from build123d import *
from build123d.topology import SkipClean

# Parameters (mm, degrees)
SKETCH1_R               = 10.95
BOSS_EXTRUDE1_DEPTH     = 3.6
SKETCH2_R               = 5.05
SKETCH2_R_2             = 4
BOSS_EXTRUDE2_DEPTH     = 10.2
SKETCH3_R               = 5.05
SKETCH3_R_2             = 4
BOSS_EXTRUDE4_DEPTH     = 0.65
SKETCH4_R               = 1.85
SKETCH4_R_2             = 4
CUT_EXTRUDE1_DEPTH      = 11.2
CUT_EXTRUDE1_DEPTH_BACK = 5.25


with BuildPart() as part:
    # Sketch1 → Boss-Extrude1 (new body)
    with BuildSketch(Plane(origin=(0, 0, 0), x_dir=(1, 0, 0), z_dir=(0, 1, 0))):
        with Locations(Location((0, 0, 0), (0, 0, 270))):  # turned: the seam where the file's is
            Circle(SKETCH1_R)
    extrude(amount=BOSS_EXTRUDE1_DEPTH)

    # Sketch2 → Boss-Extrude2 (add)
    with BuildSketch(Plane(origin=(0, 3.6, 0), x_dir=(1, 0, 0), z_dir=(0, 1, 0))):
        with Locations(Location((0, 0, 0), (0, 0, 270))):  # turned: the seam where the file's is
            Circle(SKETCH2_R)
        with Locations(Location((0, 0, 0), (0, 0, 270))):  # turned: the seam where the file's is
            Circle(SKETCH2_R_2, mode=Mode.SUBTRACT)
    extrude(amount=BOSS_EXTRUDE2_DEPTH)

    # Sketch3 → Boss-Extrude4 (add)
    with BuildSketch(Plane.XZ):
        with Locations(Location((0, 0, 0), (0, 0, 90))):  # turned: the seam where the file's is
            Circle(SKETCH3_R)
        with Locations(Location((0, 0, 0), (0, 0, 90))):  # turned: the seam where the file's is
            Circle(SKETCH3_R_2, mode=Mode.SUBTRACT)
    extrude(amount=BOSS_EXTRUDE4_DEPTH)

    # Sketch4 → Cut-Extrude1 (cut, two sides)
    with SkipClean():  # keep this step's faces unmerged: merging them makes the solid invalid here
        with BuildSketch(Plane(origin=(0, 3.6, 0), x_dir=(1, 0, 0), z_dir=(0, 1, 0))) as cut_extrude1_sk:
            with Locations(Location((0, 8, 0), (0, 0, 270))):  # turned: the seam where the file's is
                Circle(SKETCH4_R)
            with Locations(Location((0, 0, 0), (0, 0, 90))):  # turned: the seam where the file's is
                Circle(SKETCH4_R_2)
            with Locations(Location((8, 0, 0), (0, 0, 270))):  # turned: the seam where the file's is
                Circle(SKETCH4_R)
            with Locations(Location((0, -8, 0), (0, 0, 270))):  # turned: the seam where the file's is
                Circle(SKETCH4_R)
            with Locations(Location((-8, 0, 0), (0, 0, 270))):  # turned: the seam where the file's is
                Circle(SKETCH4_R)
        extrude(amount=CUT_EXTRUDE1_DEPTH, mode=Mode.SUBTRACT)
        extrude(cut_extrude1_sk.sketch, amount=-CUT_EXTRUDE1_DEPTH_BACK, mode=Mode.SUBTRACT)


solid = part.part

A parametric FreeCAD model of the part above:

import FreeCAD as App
import Part
import Sketcher

V = App.Vector

doc = App.newDocument("Part")
params = doc.addObject("Spreadsheet::Sheet", "Params")
for row, (alias, value) in enumerate([
    ("sketch1_diameter", "21.9 mm"),
    ("pad1_length", "3.6 mm"),
    ("sketch2_diameter", "8 mm"),
    ("sketch2_diameter2", "10.1 mm"),
    ("pad2_length", "10.2 mm"),
    ("sketch3_diameter", "8 mm"),
    ("sketch3_diameter2", "10.1 mm"),
    ("pad3_length", "0.65 mm"),
    ("sketch4_diameter", "8 mm"),
    ("sketch4_diameter2", "3.7 mm"),
], start=1):
    params.set(f"A{row}", alias)
    params.set(f"B{row}", "=" + value)
    params.setAlias(f"B{row}", alias)

body = doc.addObject("PartDesign::Body", "Body")

# Sketch on XZ plane
sketch1 = doc.addObject("Sketcher::SketchObject", "Sketch")
body.addObject(sketch1)
sketch1.AttachmentSupport = (doc.XZ_Plane, [""])
sketch1.MapMode = "FlatFace"
sketch1.addGeometry(Part.Circle(V(0, 0, 0), V(0, 0, 1), 11), False)
sketch1.addConstraint(Sketcher.Constraint("Coincident", 0, 3, -1, 1))
sketch1.addConstraint(Sketcher.Constraint("Diameter", 0, 21.9))
sketch1.setExpression("Constraints[1]", "Params.sketch1_diameter")
pad1 = doc.addObject("PartDesign::Pad", "Pad")
body.addObject(pad1)
pad1.Profile = sketch1
pad1.setExpression("Length", "Params.pad1_length")
pad1.Reversed = True

# Sketch on XZ plane
sketch2 = doc.addObject("Sketcher::SketchObject", "Sketch001")
body.addObject(sketch2)
sketch2.AttachmentSupport = (doc.XZ_Plane, [""])
sketch2.MapMode = "FlatFace"
sketch2.AttachmentOffset = App.Placement(V(0, 0, -3.6), App.Rotation())
sketch2.addGeometry(Part.Circle(V(0, 0, 0), V(0, 0, 1), 5), False)
sketch2.addGeometry(Part.Circle(V(0, 0, 0), V(0, 0, 1), 4), False)
sketch2.addConstraint(Sketcher.Constraint("Coincident", 0, 3, -1, 1))
sketch2.addConstraint(Sketcher.Constraint("Coincident", 1, 3, -1, 1))
sketch2.addConstraint(Sketcher.Constraint("Diameter", 1, 8.0))
sketch2.addConstraint(Sketcher.Constraint("Diameter", 0, 10.1))
sketch2.setExpression("Constraints[2]", "Params.sketch2_diameter")
sketch2.setExpression("Constraints[3]", "Params.sketch2_diameter2")
pad2 = doc.addObject("PartDesign::Pad", "Pad001")
body.addObject(pad2)
pad2.Profile = sketch2
pad2.setExpression("Length", "Params.pad2_length")
pad2.Reversed = True

# Sketch on XZ plane
sketch3 = doc.addObject("Sketcher::SketchObject", "Sketch002")
body.addObject(sketch3)
sketch3.AttachmentSupport = (doc.XZ_Plane, [""])
sketch3.MapMode = "FlatFace"
sketch3.addGeometry(Part.Circle(V(0, 0, 0), V(0, 0, 1), 5), False)
sketch3.addGeometry(Part.Circle(V(0, 0, 0), V(0, 0, 1), 4), False)
sketch3.addConstraint(Sketcher.Constraint("Coincident", 0, 3, -1, 1))
sketch3.addConstraint(Sketcher.Constraint("Coincident", 1, 3, -1, 1))
sketch3.addConstraint(Sketcher.Constraint("Diameter", 1, 8.0))
sketch3.addConstraint(Sketcher.Constraint("Diameter", 0, 10.1))
sketch3.setExpression("Constraints[2]", "Params.sketch3_diameter")
sketch3.setExpression("Constraints[3]", "Params.sketch3_diameter2")
pad3 = doc.addObject("PartDesign::Pad", "Pad002")
body.addObject(pad3)
pad3.Profile = sketch3
pad3.setExpression("Length", "Params.pad3_length")

# Sketch on XZ plane
sketch4 = doc.addObject("Sketcher::SketchObject", "Sketch003")
body.addObject(sketch4)
sketch4.AttachmentSupport = (doc.XZ_Plane, [""])
sketch4.MapMode = "FlatFace"
sketch4.AttachmentOffset = App.Placement(V(0, 0, -3.6), App.Rotation())
sketch4.addGeometry(Part.Circle(V(0, -8, 0), V(0, 0, 1), 1.9), False)
sketch4.addGeometry(Part.Circle(V(0, 0, 0), V(0, 0, 1), 4), False)
sketch4.addGeometry(Part.Circle(V(8, 0, 0), V(0, 0, 1), 1.9), False)
sketch4.addGeometry(Part.Circle(V(0, 8, 0), V(0, 0, 1), 1.9), False)
sketch4.addGeometry(Part.Circle(V(-8, 0, 0), V(0, 0, 1), 1.9), False)
sketch4.addConstraint(Sketcher.Constraint("Coincident", 1, 3, -1, 1))
sketch4.addConstraint(Sketcher.Constraint("Equal", 0, 2))
sketch4.addConstraint(Sketcher.Constraint("Equal", 2, 3))
sketch4.addConstraint(Sketcher.Constraint("Equal", 3, 4))
sketch4.addConstraint(Sketcher.Constraint("Symmetric", 0, 3, 3, 3, -1, 1))
sketch4.addConstraint(Sketcher.Constraint("Symmetric", 2, 3, 4, 3, -1, 1))
sketch4.addConstraint(Sketcher.Constraint("PointOnObject", 0, 3, -2))
sketch4.addConstraint(Sketcher.Constraint("PointOnObject", 2, 3, -1))
sketch4.addConstraint(Sketcher.Constraint("Diameter", 1, 8.0))
sketch4.addConstraint(Sketcher.Constraint("Diameter", 0, 3.7))
sketch4.addConstraint(Sketcher.Constraint("DistanceY", 0, 3, -1, 1, 8.0))
sketch4.addConstraint(Sketcher.Constraint("DistanceX", -1, 1, 2, 3, 8.0))
sketch4.setExpression("Constraints[8]", "Params.sketch4_diameter")
sketch4.setExpression("Constraints[9]", "Params.sketch4_diameter2")
pocket1 = doc.addObject("PartDesign::Pocket", "Pocket")
body.addObject(pocket1)
pocket1.Profile = sketch4
pocket1.Type = "ThroughAll"
pocket1.Midplane = True

doc.recompute()
